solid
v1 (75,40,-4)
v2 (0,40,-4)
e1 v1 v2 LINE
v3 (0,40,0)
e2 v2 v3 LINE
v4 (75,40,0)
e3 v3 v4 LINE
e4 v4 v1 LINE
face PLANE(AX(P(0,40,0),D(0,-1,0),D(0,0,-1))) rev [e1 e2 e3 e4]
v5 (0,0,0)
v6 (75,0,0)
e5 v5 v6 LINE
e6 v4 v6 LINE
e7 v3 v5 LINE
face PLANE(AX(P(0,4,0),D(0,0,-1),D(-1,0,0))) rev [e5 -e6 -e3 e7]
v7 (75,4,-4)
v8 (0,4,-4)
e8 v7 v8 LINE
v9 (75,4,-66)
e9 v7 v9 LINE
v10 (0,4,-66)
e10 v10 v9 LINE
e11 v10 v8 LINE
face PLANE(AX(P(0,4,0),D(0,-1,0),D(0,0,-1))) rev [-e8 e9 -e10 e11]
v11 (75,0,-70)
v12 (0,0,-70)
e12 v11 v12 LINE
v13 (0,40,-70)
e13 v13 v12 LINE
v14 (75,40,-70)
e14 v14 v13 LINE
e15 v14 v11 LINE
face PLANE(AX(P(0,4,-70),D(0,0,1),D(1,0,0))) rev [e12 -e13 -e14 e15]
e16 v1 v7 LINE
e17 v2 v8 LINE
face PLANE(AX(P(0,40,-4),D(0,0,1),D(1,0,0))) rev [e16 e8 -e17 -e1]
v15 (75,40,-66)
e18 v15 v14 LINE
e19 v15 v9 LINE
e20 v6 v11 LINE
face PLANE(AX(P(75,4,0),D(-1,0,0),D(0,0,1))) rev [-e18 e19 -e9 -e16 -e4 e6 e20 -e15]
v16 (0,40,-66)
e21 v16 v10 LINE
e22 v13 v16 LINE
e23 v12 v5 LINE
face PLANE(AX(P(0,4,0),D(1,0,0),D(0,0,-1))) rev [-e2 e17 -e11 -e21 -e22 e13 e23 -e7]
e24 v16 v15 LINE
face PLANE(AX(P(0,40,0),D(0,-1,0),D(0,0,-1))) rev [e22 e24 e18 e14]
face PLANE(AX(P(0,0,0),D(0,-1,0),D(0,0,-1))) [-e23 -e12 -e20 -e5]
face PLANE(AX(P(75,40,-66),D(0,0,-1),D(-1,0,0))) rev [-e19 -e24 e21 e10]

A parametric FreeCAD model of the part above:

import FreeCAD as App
import Part
import Sketcher

V = App.Vector


def add_polygon(sketch, points):
    """Adds a closed chain of lines whose ends are joined by coincident constraints."""
    first, n = sketch.GeometryCount, len(points)
    for a, b in zip(points, points[1:] + points[:1]):
        sketch.addGeometry(Part.LineSegment(App.Vector(*a, 0), App.Vector(*b, 0)), False)
    for i in range(n):
        sketch.addConstraint(Sketcher.Constraint("Coincident", first + i, 2, first + (i + 1) % n, 1))

doc = App.newDocument("Part")
body = doc.addObject("PartDesign::Body", "Body")

# Sketch on XZ plane
sketch1 = body.newObject("Sketcher::SketchObject", "Sketch")
sketch1.AttachmentSupport = (doc.getObject("XZ_Plane"), [""])
sketch1.MapMode = "FlatFace"
add_polygon(sketch1, [(0, -70), (0, 0), (75, 0), (75, -70)])  # lines 0-3
sketch1.addConstraint([
    Sketcher.Constraint("Vertical", 0),
    Sketcher.Constraint("Horizontal", 1),
    Sketcher.Constraint("Vertical", 2),
    Sketcher.Constraint("Horizontal", 3),
    Sketcher.Constraint("Coincident", 0, 2, -1, 1),
    Sketcher.Constraint("DistanceX", 1, 1, 1, 2, 75.0),
    Sketcher.Constraint("DistanceY", 0, 1, 0, 2, 70.0),
])
pad1 = body.newObject("PartDesign::Pad", "Pad")
pad1.Profile = sketch1
pad1.Length = 4
pad1.Reversed = True

# Sketch on XZ plane
sketch2 = body.newObject("Sketcher::SketchObject", "Sketch001")
sketch2.AttachmentSupport = (doc.getObject("XZ_Plane"), [""])
sketch2.MapMode = "FlatFace"
sketch2.AttachmentOffset = App.Placement(V(0, 0, -4), App.Rotation())
add_polygon(sketch2, [(0, -4), (0, 0), (75, 0), (75, -4)])  # lines 0-3
add_polygon(sketch2, [(0, -70), (0, -66), (75, -66), (75, -70)])  # lines 4-7
sketch2.addConstraint([
    Sketcher.Constraint("Vertical", 0),
    Sketcher.Constraint("Horizontal", 1),
    Sketcher.Constraint("Vertical", 2),
    Sketcher.Constraint("Horizontal", 3),
    Sketcher.Constraint("Vertical", 4),
    Sketcher.Constraint("Horizontal", 5),
    Sketcher.Constraint("Vertical", 6),
    Sketcher.Constraint("Horizontal", 7),
    Sketcher.Constraint("Coincident", 0, 2, -1, 1),
    Sketcher.Constraint("PointOnObject", 4, 2, -2),
    Sketcher.Constraint("Vertical", 2, 2, 5, 2),
    Sketcher.Constraint("Equal", 2, 4),
    Sketcher.Constraint("DistanceX", 1, 1, 1, 2, 75.0),
    Sketcher.Constraint("DistanceY", 0, 1, 0, 2, 4.0),
    Sketcher.Constraint("DistanceY", 4, 2, -1, 1, 66.0),
])
pad2 = body.newObject("PartDesign::Pad", "Pad001")
pad2.Profile = sketch2
pad2.Length = 36
pad2.Reversed = True

doc.recompute()
